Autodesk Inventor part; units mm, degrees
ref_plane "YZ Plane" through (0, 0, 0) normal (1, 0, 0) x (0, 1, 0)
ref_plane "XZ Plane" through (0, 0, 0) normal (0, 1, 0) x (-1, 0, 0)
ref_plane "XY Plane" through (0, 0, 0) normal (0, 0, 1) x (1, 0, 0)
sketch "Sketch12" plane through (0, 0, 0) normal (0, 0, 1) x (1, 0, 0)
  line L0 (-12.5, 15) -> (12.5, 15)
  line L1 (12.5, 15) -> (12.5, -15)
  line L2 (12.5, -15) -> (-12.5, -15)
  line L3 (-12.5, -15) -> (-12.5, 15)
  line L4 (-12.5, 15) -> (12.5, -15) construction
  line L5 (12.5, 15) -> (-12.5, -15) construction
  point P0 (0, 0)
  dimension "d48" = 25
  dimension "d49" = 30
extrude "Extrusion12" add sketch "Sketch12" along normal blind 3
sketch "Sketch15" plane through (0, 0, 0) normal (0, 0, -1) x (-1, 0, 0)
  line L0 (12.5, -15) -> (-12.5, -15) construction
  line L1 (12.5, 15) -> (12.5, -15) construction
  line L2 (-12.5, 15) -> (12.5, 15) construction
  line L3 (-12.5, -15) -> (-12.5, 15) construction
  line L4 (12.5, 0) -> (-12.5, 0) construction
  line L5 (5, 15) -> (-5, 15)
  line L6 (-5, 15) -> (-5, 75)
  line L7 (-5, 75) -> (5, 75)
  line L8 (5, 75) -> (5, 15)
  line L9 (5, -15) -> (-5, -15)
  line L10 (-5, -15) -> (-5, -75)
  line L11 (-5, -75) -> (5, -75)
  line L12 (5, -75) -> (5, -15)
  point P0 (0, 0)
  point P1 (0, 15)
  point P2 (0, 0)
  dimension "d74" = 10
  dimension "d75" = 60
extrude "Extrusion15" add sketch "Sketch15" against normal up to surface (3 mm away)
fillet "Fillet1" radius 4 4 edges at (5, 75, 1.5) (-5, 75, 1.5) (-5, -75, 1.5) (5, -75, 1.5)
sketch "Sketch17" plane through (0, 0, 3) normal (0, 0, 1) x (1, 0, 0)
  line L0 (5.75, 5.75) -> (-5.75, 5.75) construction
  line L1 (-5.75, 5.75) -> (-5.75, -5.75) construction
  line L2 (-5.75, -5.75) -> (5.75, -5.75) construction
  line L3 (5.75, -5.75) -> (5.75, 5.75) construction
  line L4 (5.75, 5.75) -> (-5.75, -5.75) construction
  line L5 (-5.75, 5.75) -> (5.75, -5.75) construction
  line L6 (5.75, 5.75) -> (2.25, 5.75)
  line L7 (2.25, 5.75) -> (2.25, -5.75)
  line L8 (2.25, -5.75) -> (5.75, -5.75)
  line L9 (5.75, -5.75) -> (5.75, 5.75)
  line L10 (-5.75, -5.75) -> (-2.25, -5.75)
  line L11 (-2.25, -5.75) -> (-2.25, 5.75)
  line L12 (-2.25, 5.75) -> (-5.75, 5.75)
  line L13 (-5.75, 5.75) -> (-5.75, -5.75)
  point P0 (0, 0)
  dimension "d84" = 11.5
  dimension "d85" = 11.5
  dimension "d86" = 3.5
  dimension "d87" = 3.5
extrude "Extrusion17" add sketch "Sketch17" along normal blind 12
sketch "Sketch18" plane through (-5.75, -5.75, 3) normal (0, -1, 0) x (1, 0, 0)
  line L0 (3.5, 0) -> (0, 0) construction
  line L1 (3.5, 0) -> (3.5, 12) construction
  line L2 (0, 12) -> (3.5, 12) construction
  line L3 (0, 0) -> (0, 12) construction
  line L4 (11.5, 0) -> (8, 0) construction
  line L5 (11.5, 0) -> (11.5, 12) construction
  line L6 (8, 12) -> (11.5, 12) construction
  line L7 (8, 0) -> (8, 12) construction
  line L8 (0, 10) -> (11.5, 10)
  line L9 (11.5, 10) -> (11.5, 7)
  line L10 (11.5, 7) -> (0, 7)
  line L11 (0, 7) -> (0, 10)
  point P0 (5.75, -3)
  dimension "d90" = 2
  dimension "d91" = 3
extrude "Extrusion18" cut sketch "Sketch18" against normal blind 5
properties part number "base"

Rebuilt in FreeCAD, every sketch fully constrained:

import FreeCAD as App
import Part
import Sketcher
from FreeCAD import Vector
Q = App.Units.Quantity


def edges_at(feature, points):
    """Names of the edges that pass closest to the given points."""
    edges = feature.Shape.Edges
    near = lambda p: min(range(len(edges)), key=lambda i: edges[i].distToShape(Part.Vertex(*p))[0])
    return sorted({f"Edge{near(p) + 1}" for p in points})


def add_polygon(sketch, points):
    """Adds a closed chain of lines whose ends are joined by coincident constraints."""
    first, n = sketch.GeometryCount, len(points)
    for a, b in zip(points, points[1:] + points[:1]):
        sketch.addGeometry(Part.LineSegment(App.Vector(*a, 0), App.Vector(*b, 0)), False)
    for i in range(n):
        sketch.addConstraint(Sketcher.Constraint("Coincident", first + i, 2, first + (i + 1) % n, 1))

doc = App.newDocument("Part")
body = doc.addObject("PartDesign::Body", "Body")

# Sketch on XY plane
sketch1 = body.newObject("Sketcher::SketchObject", "Sketch")
sketch1.AttachmentSupport = (doc.getObject("XY_Plane"), [""])
sketch1.MapMode = "FlatFace"
add_polygon(sketch1, [(12, 15), (-12, 15), (-12, -15), (12, -15)])  # lines 0-3
sketch1.addConstraint([
    Sketcher.Constraint("Horizontal", 0),
    Sketcher.Constraint("Vertical", 1),
    Sketcher.Constraint("Horizontal", 2),
    Sketcher.Constraint("Vertical", 3),
    Sketcher.Constraint("Symmetric", 0, 2, 2, 2, -1, 1),
    Sketcher.Constraint("DistanceX", 0, 2, 0, 1, Q("25 mm")),
    Sketcher.Constraint("DistanceY", 1, 2, 1, 1, Q("30 mm")),
])
pad1 = body.newObject("PartDesign::Pad", "Pad")
pad1.Profile = sketch1
pad1.Length = 3

# Sketch on XY plane
sketch2 = body.newObject("Sketcher::SketchObject", "Sketch001")
sketch2.AttachmentSupport = (doc.getObject("XY_Plane"), [""])
sketch2.MapMode = "FlatFace"
add_polygon(sketch2, [(5, 15), (-5, 15), (-5, 75), (5, 75)])  # lines 0-3
add_polygon(sketch2, [(-5, -75), (-5, -15), (5, -15), (5, -75)])  # lines 4-7
sketch2.addConstraint([
    Sketcher.Constraint("Horizontal", 0),
    Sketcher.Constraint("Vertical", 1),
    Sketcher.Constraint("Horizontal", 2),
    Sketcher.Constraint("Vertical", 3),
    Sketcher.Constraint("Vertical", 4),
    Sketcher.Constraint("Horizontal", 5),
    Sketcher.Constraint("Vertical", 6),
    Sketcher.Constraint("Horizontal", 7),
    Sketcher.Constraint("Symmetric", 3, 2, 4, 2, -1, 1),
    Sketcher.Constraint("Symmetric", 1, 2, 6, 2, -1, 1),
    Sketcher.Constraint("Vertical", 1, 2, 4, 2),
    Sketcher.Constraint("DistanceX", 0, 2, 0, 1, Q("10 mm")),
    Sketcher.Constraint("DistanceY", 1, 1, 1, 2, Q("60 mm")),
    Sketcher.Constraint("DistanceY", -1, 1, 0, 2, Q("15 mm")),
])
pad2 = body.newObject("PartDesign::Pad", "Pad001")
pad2.Profile = sketch2
pad2.Length = 3
doc.recompute()

fillet = body.newObject("PartDesign::Fillet", "Fillet")
fillet.Base = (pad2, edges_at(pad2, [
    (5, 75, 1.5),
    (-5, 75, 1.5),
    (-5, -75, 1.5),
    (5, -75, 1.5),
]))
fillet.Radius = 4

# Sketch on XY plane
sketch3 = body.newObject("Sketcher::SketchObject", "Sketch002")
sketch3.AttachmentSupport = (doc.getObject("XY_Plane"), [""])
sketch3.MapMode = "FlatFace"
sketch3.AttachmentOffset = App.Placement(Vector(0, 0, 3), App.Rotation())
add_polygon(sketch3, [(5.8, -5.8), (5.8, 5.8), (2.2, 5.8), (2.2, -5.8)])  # lines 0-3
add_polygon(sketch3, [(-5.8, 5.8), (-5.8, -5.8), (-2.2, -5.8), (-2.2, 5.8)])  # lines 4-7
sketch3.addConstraint([
    Sketcher.Constraint("Vertical", 0),
    Sketcher.Constraint("Horizontal", 1),
    Sketcher.Constraint("Vertical", 2),
    Sketcher.Constraint("Horizontal", 3),
    Sketcher.Constraint("Vertical", 4),
    Sketcher.Constraint("Horizontal", 5),
    Sketcher.Constraint("Vertical", 6),
    Sketcher.Constraint("Horizontal", 7),
    Sketcher.Constraint("Symmetric", 0, 2, 4, 2, -1, 1),
    Sketcher.Constraint("Symmetric", 2, 2, 6, 2, -1, 1),
    Sketcher.Constraint("Horizontal", 3, 2, 4, 2),
    Sketcher.Constraint("DistanceX", 1, 2, 1, 1, Q("3.5 mm")),
    Sketcher.Constraint("DistanceY", 0, 1, 0, 2, Q("11.5 mm")),
    Sketcher.Constraint("DistanceX", 4, 2, 3, 2, Q("11.5 mm")),
])
pad3 = body.newObject("PartDesign::Pad", "Pad002")
pad3.Profile = sketch3
pad3.Length = 12

# Sketch on XZ plane
sketch4 = body.newObject("Sketcher::SketchObject", "Sketch003")
sketch4.AttachmentSupport = (doc.getObject("XZ_Plane"), [""])
sketch4.MapMode = "FlatFace"
sketch4.AttachmentOffset = App.Placement(Vector(0, 0, 5.75), App.Rotation())
add_polygon(sketch4, [(5.8, 13), (-5.8, 13), (-5.8, 10), (5.8, 10)])  # lines 0-3
sketch4.addConstraint([
    Sketcher.Constraint("Horizontal", 0),
    Sketcher.Constraint("Vertical", 1),
    Sketcher.Constraint("Horizontal", 2),
    Sketcher.Constraint("Vertical", 3),
    Sketcher.Constraint("DistanceY", 1, 2, 1, 1, Q("3 mm")),
    Sketcher.Constraint("DistanceX", 0, 2, 0, 1, Q("11.5 mm")),
    Sketcher.Constraint("DistanceY", -1, 1, 0, 2, Q("13 mm")),
    Sketcher.Constraint("DistanceX", 0, 2, -1, 1, Q("5.75 mm")),
])
pocket1 = body.newObject("PartDesign::Pocket", "Pocket")
pocket1.Profile = sketch4
pocket1.Length = 5

doc.recompute()
